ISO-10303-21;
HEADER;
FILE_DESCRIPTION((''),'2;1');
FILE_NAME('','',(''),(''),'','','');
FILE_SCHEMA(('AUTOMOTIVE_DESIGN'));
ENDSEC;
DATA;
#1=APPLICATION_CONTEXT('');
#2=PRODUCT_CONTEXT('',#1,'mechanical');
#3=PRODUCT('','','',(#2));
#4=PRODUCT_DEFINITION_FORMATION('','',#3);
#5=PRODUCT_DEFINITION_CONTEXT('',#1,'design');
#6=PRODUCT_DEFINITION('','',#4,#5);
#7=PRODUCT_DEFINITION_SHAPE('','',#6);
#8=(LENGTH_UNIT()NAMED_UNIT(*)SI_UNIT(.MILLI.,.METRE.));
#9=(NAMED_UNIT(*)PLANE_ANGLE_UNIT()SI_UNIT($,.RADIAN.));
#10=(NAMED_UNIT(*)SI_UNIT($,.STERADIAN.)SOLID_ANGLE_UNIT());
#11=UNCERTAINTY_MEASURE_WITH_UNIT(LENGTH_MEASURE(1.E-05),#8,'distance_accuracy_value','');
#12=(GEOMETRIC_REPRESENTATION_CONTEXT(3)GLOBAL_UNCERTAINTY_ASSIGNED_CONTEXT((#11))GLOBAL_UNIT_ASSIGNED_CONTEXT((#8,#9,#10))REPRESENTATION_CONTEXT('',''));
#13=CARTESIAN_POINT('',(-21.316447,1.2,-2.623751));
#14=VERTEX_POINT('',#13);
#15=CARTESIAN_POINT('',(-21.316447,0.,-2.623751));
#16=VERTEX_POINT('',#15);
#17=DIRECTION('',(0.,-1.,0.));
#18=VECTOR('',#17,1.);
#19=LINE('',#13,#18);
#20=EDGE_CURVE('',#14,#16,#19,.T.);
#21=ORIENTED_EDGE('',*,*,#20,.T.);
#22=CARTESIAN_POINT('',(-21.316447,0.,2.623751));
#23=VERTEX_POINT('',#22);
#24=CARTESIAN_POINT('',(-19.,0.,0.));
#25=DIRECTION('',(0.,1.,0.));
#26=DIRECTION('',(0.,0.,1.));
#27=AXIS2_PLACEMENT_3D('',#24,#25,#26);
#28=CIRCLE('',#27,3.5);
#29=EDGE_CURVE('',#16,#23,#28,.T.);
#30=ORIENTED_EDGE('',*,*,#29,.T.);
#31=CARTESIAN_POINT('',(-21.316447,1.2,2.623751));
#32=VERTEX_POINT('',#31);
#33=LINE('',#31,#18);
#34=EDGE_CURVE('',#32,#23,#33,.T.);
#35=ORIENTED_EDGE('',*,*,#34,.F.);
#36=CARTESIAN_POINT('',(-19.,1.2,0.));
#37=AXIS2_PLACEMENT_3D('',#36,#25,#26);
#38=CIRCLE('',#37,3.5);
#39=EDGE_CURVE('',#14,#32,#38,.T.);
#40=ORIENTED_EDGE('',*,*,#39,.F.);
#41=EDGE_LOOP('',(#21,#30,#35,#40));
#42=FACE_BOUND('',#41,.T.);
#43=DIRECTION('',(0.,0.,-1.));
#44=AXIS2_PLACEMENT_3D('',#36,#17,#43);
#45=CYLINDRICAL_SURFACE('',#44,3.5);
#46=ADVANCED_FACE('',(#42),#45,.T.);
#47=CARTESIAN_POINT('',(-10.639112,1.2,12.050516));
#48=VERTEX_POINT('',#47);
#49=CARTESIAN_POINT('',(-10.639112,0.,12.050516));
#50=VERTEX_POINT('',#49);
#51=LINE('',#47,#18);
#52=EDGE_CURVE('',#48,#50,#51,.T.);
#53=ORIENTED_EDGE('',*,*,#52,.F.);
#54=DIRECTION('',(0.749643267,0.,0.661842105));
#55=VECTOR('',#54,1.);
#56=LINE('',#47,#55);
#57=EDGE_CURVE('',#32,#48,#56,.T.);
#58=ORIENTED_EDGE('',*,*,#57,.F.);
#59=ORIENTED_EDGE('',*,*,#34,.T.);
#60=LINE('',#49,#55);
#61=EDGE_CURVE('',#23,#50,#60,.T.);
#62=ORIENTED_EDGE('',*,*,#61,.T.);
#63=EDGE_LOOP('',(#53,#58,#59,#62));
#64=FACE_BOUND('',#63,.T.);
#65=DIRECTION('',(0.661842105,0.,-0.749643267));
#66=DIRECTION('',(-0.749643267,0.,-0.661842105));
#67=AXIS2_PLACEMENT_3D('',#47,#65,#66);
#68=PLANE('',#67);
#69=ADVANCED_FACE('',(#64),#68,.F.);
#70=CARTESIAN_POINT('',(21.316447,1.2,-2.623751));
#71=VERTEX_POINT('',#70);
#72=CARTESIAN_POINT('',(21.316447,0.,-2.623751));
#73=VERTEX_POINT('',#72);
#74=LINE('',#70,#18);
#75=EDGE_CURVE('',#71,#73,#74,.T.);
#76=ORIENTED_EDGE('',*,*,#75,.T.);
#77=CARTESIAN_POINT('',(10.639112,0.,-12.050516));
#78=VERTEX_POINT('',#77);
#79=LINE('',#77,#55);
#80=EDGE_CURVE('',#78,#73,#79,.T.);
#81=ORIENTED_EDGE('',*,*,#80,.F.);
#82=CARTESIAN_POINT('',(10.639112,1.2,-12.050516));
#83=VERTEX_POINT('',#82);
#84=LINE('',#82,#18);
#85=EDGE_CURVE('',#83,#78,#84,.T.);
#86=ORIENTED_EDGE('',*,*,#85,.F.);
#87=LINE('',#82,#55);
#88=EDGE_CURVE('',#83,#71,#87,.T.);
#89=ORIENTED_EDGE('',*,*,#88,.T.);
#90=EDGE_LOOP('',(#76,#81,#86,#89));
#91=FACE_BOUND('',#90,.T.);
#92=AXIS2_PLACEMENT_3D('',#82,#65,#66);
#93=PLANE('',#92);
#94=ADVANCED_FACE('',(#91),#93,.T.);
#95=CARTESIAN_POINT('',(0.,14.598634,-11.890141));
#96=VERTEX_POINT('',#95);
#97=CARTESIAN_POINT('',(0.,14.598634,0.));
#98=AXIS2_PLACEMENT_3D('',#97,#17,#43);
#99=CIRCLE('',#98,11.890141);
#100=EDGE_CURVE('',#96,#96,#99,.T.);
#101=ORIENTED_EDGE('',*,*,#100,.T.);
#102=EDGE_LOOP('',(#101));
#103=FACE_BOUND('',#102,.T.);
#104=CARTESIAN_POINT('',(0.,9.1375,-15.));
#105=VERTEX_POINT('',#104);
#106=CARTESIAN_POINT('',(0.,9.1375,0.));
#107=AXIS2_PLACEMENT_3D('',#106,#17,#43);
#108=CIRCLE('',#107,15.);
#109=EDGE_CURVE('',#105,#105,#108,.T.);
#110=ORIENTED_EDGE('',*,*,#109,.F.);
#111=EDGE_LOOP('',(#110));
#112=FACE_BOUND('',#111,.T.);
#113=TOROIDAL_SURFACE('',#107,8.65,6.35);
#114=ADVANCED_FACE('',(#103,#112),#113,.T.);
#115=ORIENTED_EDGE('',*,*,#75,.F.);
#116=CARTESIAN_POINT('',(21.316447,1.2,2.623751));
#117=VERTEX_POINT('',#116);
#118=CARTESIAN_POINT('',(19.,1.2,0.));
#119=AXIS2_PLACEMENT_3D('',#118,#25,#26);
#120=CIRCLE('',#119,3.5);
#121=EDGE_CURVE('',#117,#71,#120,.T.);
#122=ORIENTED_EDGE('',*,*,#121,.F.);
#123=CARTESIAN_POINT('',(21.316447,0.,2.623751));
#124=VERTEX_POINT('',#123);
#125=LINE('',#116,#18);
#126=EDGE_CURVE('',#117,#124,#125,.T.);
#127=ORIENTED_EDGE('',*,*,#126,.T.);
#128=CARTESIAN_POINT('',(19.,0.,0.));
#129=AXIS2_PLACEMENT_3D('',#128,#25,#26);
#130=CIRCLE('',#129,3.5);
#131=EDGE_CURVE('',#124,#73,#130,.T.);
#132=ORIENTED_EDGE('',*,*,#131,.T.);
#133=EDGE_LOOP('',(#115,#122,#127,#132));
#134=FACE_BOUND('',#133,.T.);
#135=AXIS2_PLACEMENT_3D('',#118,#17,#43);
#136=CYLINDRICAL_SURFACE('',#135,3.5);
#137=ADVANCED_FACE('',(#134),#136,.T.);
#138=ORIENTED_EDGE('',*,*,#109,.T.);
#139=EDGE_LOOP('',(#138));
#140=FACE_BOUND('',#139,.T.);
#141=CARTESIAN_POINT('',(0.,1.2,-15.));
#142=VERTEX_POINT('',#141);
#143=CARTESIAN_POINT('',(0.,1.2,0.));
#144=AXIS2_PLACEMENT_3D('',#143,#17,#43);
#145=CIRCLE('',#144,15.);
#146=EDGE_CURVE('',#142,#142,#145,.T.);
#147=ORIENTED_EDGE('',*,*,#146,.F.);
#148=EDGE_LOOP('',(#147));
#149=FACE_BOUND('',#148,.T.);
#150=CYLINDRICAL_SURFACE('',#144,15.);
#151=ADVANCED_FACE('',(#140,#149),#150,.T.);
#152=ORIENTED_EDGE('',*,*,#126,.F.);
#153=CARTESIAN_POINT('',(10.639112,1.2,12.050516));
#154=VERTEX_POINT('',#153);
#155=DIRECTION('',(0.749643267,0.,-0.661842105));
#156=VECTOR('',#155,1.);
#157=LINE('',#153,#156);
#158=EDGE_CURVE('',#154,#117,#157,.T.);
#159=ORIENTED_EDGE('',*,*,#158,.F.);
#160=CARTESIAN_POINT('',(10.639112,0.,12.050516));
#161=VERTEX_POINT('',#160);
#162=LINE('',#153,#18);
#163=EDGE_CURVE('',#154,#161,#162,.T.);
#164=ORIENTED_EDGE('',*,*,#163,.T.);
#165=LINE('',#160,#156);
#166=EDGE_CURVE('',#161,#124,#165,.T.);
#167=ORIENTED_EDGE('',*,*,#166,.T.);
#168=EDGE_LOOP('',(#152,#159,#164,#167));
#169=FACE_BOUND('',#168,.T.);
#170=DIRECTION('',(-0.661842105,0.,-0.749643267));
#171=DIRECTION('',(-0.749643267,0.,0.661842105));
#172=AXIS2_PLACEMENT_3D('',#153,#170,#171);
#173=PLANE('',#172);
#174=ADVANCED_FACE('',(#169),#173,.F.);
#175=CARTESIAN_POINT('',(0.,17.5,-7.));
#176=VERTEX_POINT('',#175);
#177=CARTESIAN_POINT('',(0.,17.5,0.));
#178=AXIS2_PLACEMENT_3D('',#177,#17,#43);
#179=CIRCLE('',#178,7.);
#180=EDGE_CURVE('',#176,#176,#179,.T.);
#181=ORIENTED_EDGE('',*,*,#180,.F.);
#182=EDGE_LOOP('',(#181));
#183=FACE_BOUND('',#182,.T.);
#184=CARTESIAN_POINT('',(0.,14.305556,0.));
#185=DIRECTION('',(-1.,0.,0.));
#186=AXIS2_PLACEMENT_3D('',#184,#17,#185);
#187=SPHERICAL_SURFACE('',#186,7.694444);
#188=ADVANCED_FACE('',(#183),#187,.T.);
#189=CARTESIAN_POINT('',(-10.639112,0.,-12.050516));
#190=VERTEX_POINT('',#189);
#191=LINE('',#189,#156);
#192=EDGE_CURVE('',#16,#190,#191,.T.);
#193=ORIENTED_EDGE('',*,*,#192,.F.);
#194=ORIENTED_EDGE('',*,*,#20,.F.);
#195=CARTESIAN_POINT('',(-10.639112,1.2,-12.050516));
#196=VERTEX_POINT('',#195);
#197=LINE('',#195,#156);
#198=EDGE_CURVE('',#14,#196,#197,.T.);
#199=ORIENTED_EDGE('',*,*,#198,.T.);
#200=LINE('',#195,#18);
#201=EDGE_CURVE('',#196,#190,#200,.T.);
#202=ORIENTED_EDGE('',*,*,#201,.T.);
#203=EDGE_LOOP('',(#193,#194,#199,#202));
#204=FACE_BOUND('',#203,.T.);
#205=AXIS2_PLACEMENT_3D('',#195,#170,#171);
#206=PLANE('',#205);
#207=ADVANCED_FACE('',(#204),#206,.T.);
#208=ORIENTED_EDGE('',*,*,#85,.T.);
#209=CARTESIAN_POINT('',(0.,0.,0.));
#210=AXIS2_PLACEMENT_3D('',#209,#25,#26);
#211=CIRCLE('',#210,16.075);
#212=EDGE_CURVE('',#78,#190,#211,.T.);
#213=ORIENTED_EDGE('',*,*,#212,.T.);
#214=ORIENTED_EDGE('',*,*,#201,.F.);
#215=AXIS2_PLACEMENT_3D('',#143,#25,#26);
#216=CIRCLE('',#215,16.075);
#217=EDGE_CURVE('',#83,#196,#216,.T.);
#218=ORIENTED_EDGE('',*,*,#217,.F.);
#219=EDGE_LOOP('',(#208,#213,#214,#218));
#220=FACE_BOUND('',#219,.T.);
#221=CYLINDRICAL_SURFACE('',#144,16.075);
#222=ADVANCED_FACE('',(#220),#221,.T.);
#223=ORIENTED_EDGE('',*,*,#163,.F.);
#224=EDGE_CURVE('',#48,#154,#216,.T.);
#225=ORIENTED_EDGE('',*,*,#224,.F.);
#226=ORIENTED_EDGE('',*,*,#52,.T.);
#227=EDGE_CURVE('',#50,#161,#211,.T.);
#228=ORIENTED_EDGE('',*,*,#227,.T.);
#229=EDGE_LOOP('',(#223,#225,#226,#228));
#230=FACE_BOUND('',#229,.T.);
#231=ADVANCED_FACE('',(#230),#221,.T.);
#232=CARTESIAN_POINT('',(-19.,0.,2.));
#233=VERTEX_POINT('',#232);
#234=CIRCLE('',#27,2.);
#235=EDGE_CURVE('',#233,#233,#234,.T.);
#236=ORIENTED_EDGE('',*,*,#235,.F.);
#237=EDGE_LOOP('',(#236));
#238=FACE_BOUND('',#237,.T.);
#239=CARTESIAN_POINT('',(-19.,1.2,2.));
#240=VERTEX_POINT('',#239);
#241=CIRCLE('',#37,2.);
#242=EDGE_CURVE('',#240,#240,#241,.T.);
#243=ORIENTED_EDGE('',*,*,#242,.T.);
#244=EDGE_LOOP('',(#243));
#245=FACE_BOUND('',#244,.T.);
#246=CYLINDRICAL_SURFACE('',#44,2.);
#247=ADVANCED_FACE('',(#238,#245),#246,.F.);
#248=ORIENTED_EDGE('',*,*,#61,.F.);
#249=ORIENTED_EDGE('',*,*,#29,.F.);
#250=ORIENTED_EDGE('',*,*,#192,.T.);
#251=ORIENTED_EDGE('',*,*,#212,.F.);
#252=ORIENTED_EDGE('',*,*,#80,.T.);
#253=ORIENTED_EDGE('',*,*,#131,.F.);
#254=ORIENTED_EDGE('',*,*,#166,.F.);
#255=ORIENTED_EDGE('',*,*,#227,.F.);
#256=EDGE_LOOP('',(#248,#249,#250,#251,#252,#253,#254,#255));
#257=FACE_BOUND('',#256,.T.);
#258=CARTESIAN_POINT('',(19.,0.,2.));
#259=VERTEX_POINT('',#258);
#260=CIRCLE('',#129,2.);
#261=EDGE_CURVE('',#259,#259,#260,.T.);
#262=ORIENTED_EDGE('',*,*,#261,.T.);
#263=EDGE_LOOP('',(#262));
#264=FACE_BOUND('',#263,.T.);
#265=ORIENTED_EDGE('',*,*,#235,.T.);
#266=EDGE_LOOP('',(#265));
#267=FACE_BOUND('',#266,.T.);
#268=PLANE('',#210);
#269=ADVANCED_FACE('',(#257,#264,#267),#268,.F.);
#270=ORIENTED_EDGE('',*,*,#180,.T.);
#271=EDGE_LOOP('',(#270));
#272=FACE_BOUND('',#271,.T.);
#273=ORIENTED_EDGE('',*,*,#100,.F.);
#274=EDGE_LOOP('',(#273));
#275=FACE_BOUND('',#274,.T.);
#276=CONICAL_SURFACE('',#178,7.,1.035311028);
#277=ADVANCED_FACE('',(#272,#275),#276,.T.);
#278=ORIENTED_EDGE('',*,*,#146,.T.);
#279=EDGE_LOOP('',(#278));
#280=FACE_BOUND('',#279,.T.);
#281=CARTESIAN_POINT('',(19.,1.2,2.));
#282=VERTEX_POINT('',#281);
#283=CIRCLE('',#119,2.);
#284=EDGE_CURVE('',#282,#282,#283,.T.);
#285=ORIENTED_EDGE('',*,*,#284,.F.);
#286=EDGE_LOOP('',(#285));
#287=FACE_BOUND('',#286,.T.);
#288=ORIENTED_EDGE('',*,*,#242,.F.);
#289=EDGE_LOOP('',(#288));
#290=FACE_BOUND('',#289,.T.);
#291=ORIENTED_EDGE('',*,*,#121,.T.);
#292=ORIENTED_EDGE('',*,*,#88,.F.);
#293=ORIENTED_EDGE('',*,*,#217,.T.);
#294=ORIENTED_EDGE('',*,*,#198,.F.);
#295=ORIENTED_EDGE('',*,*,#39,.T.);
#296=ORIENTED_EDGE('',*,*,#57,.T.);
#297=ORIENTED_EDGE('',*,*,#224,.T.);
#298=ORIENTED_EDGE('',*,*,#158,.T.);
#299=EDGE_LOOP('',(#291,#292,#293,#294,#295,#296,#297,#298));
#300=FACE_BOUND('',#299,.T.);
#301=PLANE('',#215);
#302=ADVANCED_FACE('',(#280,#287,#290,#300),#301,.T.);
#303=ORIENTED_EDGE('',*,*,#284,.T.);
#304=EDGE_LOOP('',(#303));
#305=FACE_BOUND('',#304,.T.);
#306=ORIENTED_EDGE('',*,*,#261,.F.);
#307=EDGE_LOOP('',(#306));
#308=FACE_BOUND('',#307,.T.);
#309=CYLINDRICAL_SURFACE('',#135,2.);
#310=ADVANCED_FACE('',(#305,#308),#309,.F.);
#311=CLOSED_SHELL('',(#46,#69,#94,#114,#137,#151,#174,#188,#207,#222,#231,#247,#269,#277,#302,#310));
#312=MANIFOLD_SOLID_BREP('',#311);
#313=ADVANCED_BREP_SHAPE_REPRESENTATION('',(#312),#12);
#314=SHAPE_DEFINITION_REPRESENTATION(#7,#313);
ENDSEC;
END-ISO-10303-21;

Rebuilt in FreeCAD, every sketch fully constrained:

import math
import FreeCAD as App
import Part
import Sketcher

doc = App.newDocument("Part")
body = doc.addObject("PartDesign::Body", "Body")

# Sketch on XZ plane
sketch1 = body.newObject("Sketcher::SketchObject", "Sketch")
sketch1.AttachmentSupport = (doc.getObject("XZ_Plane"), [""])
sketch1.MapMode = "FlatFace"
sketch1.addGeometry(Part.ArcOfCircle(Part.Circle(App.Vector(0, 0, 0), App.Vector(0, 0, 1), 16.1), math.radians(49), math.radians(131)), False)
sketch1.addGeometry(Part.LineSegment(App.Vector(10.6, 12.1, 0), App.Vector(21.3, 2.6, 0)), False)
sketch1.addGeometry(Part.ArcOfCircle(Part.Circle(App.Vector(19, 0, 0), App.Vector(0, 0, 1), 3.5), math.radians(-49), math.radians(49)), False)
sketch1.addGeometry(Part.LineSegment(App.Vector(21.3, -2.6, 0), App.Vector(10.6, -12.1, 0)), False)
sketch1.addGeometry(Part.ArcOfCircle(Part.Circle(App.Vector(0, 0, 0), App.Vector(0, 0, 1), 16.1), math.radians(-131), math.radians(-49)), False)
sketch1.addGeometry(Part.LineSegment(App.Vector(-10.6, -12.1, 0), App.Vector(-21.3, -2.6, 0)), False)
sketch1.addGeometry(Part.ArcOfCircle(Part.Circle(App.Vector(-19, 0, 0), App.Vector(0, 0, 1), 3.5), math.radians(131), math.radians(229)), False)
sketch1.addGeometry(Part.LineSegment(App.Vector(-21.3, 2.6, 0), App.Vector(-10.6, 12.1, 0)), False)
sketch1.addGeometry(Part.Circle(App.Vector(-19, 0, 0), App.Vector(0, 0, 1), 2), False)
sketch1.addGeometry(Part.Circle(App.Vector(19, 0, 0), App.Vector(0, 0, 1), 2), False)
sketch1.addConstraint(Sketcher.Constraint("Tangent", 0, 1, 1, 1))
sketch1.addConstraint(Sketcher.Constraint("Tangent", 1, 2, 2, 2))
sketch1.addConstraint(Sketcher.Constraint("Tangent", 2, 1, 3, 1))
sketch1.addConstraint(Sketcher.Constraint("Tangent", 3, 2, 4, 2))
sketch1.addConstraint(Sketcher.Constraint("Tangent", 4, 1, 5, 1))
sketch1.addConstraint(Sketcher.Constraint("Tangent", 5, 2, 6, 2))
sketch1.addConstraint(Sketcher.Constraint("Tangent", 6, 1, 7, 1))
sketch1.addConstraint(Sketcher.Constraint("Tangent", 7, 2, 0, 2))
sketch1.addConstraint(Sketcher.Constraint("Coincident", 0, 3, -1, 1))
sketch1.addConstraint(Sketcher.Constraint("Coincident", 4, 3, -1, 1))
sketch1.addConstraint(Sketcher.Constraint("Coincident", 8, 3, 6, 3))
sketch1.addConstraint(Sketcher.Constraint("Coincident", 9, 3, 2, 3))
sketch1.addConstraint(Sketcher.Constraint("Equal", 0, 4))
sketch1.addConstraint(Sketcher.Constraint("Equal", 2, 6))
sketch1.addConstraint(Sketcher.Constraint("Equal", 8, 9))
sketch1.addConstraint(Sketcher.Constraint("Symmetric", 2, 3, 6, 3, -1, 1))
sketch1.addConstraint(Sketcher.Constraint("PointOnObject", 2, 3, -1))
sketch1.addConstraint(Sketcher.Constraint("Diameter", 8, 4.0))
sketch1.addConstraint(Sketcher.Constraint("Radius", 2, 3.5))
sketch1.addConstraint(Sketcher.Constraint("DistanceX", -1, 1, 2, 3, 19.0))
sketch1.addConstraint(Sketcher.Constraint("Radius", 0, 16.075))
pad1 = body.newObject("PartDesign::Pad", "Pad")
pad1.Profile = sketch1
pad1.Length = 1.2
pad1.Reversed = True

# Sketch on XY plane
sketch2 = body.newObject("Sketcher::SketchObject", "Sketch001")
sketch2.AttachmentSupport = (doc.getObject("XY_Plane"), [""])
sketch2.MapMode = "FlatFace"
sketch2.addGeometry(Part.LineSegment(App.Vector(-15, 9, 0), App.Vector(-15, 1, 0)), False)
sketch2.addGeometry(Part.LineSegment(App.Vector(-15, 1, 0), App.Vector(0, 1, 0)), False)
sketch2.addGeometry(Part.LineSegment(App.Vector(0, 1, 0), App.Vector(0, 22, 0)), False)
sketch2.addGeometry(Part.ArcOfCircle(Part.Circle(App.Vector(0, 14, 0), App.Vector(0, 0, 1), 8), math.radians(90), math.radians(155)), False)
sketch2.addGeometry(Part.LineSegment(App.Vector(-7, 18, 0), App.Vector(-12, 15, 0)), False)
sketch2.addGeometry(Part.ArcOfCircle(Part.Circle(App.Vector(-9, 9, 0), App.Vector(0, 0, 1), 6), math.radians(121), math.radians(180)), False)
sketch2.addConstraint(Sketcher.Constraint("Coincident", 0, 2, 1, 1))
sketch2.addConstraint(Sketcher.Constraint("Coincident", 1, 2, 2, 1))
sketch2.addConstraint(Sketcher.Constraint("Coincident", 2, 2, 3, 1))
sketch2.addConstraint(Sketcher.Constraint("Coincident", 3, 2, 4, 1))
sketch2.addConstraint(Sketcher.Constraint("Tangent", 4, 2, 5, 1))
sketch2.addConstraint(Sketcher.Constraint("Tangent", 5, 2, 0, 1))
sketch2.addConstraint(Sketcher.Constraint("Vertical", 0))
sketch2.addConstraint(Sketcher.Constraint("Horizontal", 1))
sketch2.addConstraint(Sketcher.Constraint("Vertical", 2))
sketch2.addConstraint(Sketcher.Constraint("PointOnObject", 3, 3, -2))
sketch2.addConstraint(Sketcher.Constraint("PointOnObject", 1, 2, -2))
sketch2.addConstraint(Sketcher.Constraint("DistanceX", 1, 1, 1, 2, 15.0))
sketch2.addConstraint(Sketcher.Constraint("Radius", 5, 6.35))
sketch2.addConstraint(Sketcher.Constraint("DistanceY", 2, 1, 2, 2, 20.8))
sketch2.addConstraint(Sketcher.Constraint("DistanceY", -1, 1, 2, 2, 22.0))
sketch2.addConstraint(Sketcher.Constraint("DistanceX", 3, 2, -1, 1, 7.0))
sketch2.addConstraint(Sketcher.Constraint("DistanceY", -1, 1, 3, 2, 17.5))
sketch2.addConstraint(Sketcher.Constraint("DistanceY", 0, 2, 0, 1, 7.9375))
revolution = body.newObject("PartDesign::Revolution", "Revolution")
revolution.Profile = sketch2
revolution.ReferenceAxis = (sketch2, ["V_Axis"])
revolution.Angle = 360

doc.recompute()
